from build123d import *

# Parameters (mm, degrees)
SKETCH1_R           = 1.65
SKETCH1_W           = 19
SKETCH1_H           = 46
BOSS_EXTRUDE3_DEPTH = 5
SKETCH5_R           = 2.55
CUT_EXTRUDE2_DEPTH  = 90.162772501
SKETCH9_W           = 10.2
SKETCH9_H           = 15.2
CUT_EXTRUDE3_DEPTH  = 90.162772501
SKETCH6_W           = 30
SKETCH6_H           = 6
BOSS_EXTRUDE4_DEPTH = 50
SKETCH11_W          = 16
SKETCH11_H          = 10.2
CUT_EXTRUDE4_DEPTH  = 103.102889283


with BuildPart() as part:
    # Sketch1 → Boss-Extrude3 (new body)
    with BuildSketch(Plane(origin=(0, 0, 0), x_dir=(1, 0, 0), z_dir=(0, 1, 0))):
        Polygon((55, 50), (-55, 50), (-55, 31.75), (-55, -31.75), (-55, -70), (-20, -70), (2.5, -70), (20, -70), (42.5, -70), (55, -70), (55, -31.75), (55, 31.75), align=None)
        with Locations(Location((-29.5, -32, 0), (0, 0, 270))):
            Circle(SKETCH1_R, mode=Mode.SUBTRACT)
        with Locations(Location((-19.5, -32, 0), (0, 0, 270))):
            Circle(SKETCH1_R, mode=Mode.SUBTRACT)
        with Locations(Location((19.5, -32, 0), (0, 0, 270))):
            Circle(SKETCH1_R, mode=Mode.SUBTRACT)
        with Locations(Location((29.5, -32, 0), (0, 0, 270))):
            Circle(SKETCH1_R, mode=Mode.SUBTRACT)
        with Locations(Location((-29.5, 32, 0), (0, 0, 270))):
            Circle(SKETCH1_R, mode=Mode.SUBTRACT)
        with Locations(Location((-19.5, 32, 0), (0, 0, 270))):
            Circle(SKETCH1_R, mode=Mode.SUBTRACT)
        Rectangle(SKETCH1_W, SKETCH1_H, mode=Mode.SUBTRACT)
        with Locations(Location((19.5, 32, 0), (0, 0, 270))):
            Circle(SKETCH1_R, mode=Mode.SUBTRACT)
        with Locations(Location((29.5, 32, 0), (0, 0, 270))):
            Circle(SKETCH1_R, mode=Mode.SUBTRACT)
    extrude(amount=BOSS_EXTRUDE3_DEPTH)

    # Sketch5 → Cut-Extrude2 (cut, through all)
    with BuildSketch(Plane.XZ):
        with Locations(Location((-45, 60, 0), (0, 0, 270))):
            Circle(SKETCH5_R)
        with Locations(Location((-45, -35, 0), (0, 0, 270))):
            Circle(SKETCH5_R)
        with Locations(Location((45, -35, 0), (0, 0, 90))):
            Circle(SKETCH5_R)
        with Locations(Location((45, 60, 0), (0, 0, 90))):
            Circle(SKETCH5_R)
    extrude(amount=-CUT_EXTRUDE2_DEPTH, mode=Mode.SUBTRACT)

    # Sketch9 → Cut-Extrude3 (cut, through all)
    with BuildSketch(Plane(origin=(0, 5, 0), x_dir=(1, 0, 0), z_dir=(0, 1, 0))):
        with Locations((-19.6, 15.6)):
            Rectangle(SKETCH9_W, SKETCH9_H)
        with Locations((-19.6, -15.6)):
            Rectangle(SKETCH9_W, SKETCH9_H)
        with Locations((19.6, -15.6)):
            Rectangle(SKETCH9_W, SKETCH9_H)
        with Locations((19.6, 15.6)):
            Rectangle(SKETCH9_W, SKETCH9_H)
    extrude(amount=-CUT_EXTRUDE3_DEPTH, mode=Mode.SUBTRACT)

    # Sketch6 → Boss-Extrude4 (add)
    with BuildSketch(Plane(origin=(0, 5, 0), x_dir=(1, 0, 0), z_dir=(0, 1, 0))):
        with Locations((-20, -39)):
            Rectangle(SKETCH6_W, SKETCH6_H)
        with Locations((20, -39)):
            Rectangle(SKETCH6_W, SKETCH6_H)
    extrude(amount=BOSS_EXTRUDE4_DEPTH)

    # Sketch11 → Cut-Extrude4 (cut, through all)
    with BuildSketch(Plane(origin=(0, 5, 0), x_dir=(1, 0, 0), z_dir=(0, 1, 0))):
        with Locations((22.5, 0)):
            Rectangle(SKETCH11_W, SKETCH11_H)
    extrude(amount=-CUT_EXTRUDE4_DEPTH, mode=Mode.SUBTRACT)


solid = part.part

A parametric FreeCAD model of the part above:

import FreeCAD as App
import Part
import Sketcher


def add_polygon(sketch, points):
    """Adds a closed chain of lines whose ends are joined by coincident constraints."""
    first, n = sketch.GeometryCount, len(points)
    for a, b in zip(points, points[1:] + points[:1]):
        sketch.addGeometry(Part.LineSegment(App.Vector(*a, 0), App.Vector(*b, 0)), False)
    for i in range(n):
        sketch.addConstraint(Sketcher.Constraint("Coincident", first + i, 2, first + (i + 1) % n, 1))

doc = App.newDocument("Part")
body = doc.addObject("PartDesign::Body", "Body")

# Sketch on XZ plane
sketch1 = body.newObject("Sketcher::SketchObject", "Sketch")
sketch1.AttachmentSupport = (doc.getObject("XZ_Plane"), [""])
sketch1.MapMode = "FlatFace"
add_polygon(sketch1, [(55, -50), (-55, -50), (-55, 70), (55, 70)])  # lines 0-3
sketch1.addGeometry(Part.Circle(App.Vector(-29.5, 32, 0), App.Vector(0, 0, 1), 1.65), False)  # 4
sketch1.addGeometry(Part.Circle(App.Vector(-19.5, 32, 0), App.Vector(0, 0, 1), 1.65), False)  # 5
sketch1.addGeometry(Part.Circle(App.Vector(19.5, 32, 0), App.Vector(0, 0, 1), 1.65), False)  # 6
sketch1.addGeometry(Part.Circle(App.Vector(29.5, 32, 0), App.Vector(0, 0, 1), 1.65), False)  # 7
sketch1.addGeometry(Part.Circle(App.Vector(-29.5, -32, 0), App.Vector(0, 0, 1), 1.65), False)  # 8
sketch1.addGeometry(Part.Circle(App.Vector(-19.5, -32, 0), App.Vector(0, 0, 1), 1.65), False)  # 9
add_polygon(sketch1, [(9.5, 23), (-9.5, 23), (-9.5, -23), (9.5, -23)])  # lines 10-13
sketch1.addGeometry(Part.Circle(App.Vector(19.5, -32, 0), App.Vector(0, 0, 1), 1.65), False)  # 14
sketch1.addGeometry(Part.Circle(App.Vector(29.5, -32, 0), App.Vector(0, 0, 1), 1.65), False)  # 15
sketch1.addConstraint([
    Sketcher.Constraint("Horizontal", 0),
    Sketcher.Constraint("Vertical", 1),
    Sketcher.Constraint("Horizontal", 2),
    Sketcher.Constraint("Vertical", 3),
    Sketcher.Constraint("Horizontal", 10),
    Sketcher.Constraint("Vertical", 11),
    Sketcher.Constraint("Horizontal", 12),
    Sketcher.Constraint("Vertical", 13),
    Sketcher.Constraint("Equal", 4, 5),
    Sketcher.Constraint("Equal", 5, 6),
    Sketcher.Constraint("Equal", 6, 7),
    Sketcher.Constraint("Equal", 7, 8),
    Sketcher.Constraint("Equal", 8, 9),
    Sketcher.Constraint("Equal", 9, 14),
    Sketcher.Constraint("Equal", 14, 15),
    Sketcher.Constraint("Symmetric", 7, 3, 8, 3, -1, 1),
    Sketcher.Constraint("Symmetric", 6, 3, 9, 3, -1, 1),
    Sketcher.Constraint("Symmetric", 5, 3, 14, 3, -1, 1),
    Sketcher.Constraint("Symmetric", 4, 3, 15, 3, -1, 1),
    Sketcher.Constraint("Symmetric", 10, 2, 12, 2, -1, 1),
    Sketcher.Constraint("Symmetric", 5, 3, 6, 3, -2),
    Sketcher.Constraint("Symmetric", 4, 3, 7, 3, -2),
    Sketcher.Constraint("Horizontal", 4, 3, 5, 3),
    Sketcher.Constraint("Diameter", 4, 3.3),
    Sketcher.Constraint("DistanceX", 0, 2, 0, 1, 110.0),
    Sketcher.Constraint("DistanceX", 10, 2, 10, 1, 19.0),
    Sketcher.Constraint("DistanceY", 1, 1, 1, 2, 120.0),
    Sketcher.Constraint("DistanceY", 11, 2, 11, 1, 46.0),
    Sketcher.Constraint("DistanceY", -1, 1, 4, 3, 32.0),
    Sketcher.Constraint("DistanceX", 0, 2, -1, 1, 55.0),
    Sketcher.Constraint("DistanceY", 0, 2, -1, 1, 50.0),
    Sketcher.Constraint("DistanceX", 4, 3, 5, 3, 10.0),
    Sketcher.Constraint("DistanceX", 5, 3, 6, 3, 39.0),
])
pad1 = body.newObject("PartDesign::Pad", "Pad")
pad1.Profile = sketch1
pad1.Length = 5
pad1.Reversed = True

# Sketch on XZ plane
sketch2 = body.newObject("Sketcher::SketchObject", "Sketch001")
sketch2.AttachmentSupport = (doc.getObject("XZ_Plane"), [""])
sketch2.MapMode = "FlatFace"
sketch2.addGeometry([
    Part.Circle(App.Vector(-45, 60, 0), App.Vector(0, 0, 1), 2.55),
    Part.Circle(App.Vector(-45, -35, 0), App.Vector(0, 0, 1), 2.55),
    Part.Circle(App.Vector(45, -35, 0), App.Vector(0, 0, 1), 2.55),
    Part.Circle(App.Vector(45, 60, 0), App.Vector(0, 0, 1), 2.55),
], False)
sketch2.addConstraint([
    Sketcher.Constraint("Equal", 0, 1),
    Sketcher.Constraint("Equal", 1, 2),
    Sketcher.Constraint("Equal", 2, 3),
    Sketcher.Constraint("Symmetric", 1, 3, 2, 3, -2),
    Sketcher.Constraint("Symmetric", 0, 3, 3, 3, -2),
    Sketcher.Constraint("Vertical", 0, 3, 1, 3),
    Sketcher.Constraint("Diameter", 0, 5.1),
    Sketcher.Constraint("DistanceX", 0, 3, -1, 1, 45.0),
    Sketcher.Constraint("DistanceY", -1, 1, 0, 3, 60.0),
    Sketcher.Constraint("DistanceY", 1, 3, -1, 1, 35.0),
])
pocket1 = body.newObject("PartDesign::Pocket", "Pocket")
pocket1.Profile = sketch2
pocket1.Type = "ThroughAll"

# Sketch on XZ plane
sketch3 = body.newObject("Sketcher::SketchObject", "Sketch002")
sketch3.AttachmentSupport = (doc.getObject("XZ_Plane"), [""])
sketch3.MapMode = "FlatFace"
sketch3.AttachmentOffset = App.Placement(App.Vector(0, 0, -5), App.Rotation())
add_polygon(sketch3, [(-24.7, -23.2), (-24.7, -8), (-14.5, -8), (-14.5, -23.2)])  # lines 0-3
add_polygon(sketch3, [(-24.7, 8), (-24.7, 23.2), (-14.5, 23.2), (-14.5, 8)])  # lines 4-7
add_polygon(sketch3, [(14.5, 8), (14.5, 23.2), (24.7, 23.2), (24.7, 8)])  # lines 8-11
add_polygon(sketch3, [(14.5, -23.2), (14.5, -8), (24.7, -8), (24.7, -23.2)])  # lines 12-15
sketch3.addConstraint([
    Sketcher.Constraint("Vertical", 0),
    Sketcher.Constraint("Horizontal", 1),
    Sketcher.Constraint("Vertical", 2),
    Sketcher.Constraint("Horizontal", 3),
    Sketcher.Constraint("Vertical", 4),
    Sketcher.Constraint("Horizontal", 5),
    Sketcher.Constraint("Vertical", 6),
    Sketcher.Constraint("Horizontal", 7),
    Sketcher.Constraint("Vertical", 8),
    Sketcher.Constraint("Horizontal", 9),
    Sketcher.Constraint("Vertical", 10),
    Sketcher.Constraint("Horizontal", 11),
    Sketcher.Constraint("Vertical", 12),
    Sketcher.Constraint("Horizontal", 13),
    Sketcher.Constraint("Vertical", 14),
    Sketcher.Constraint("Horizontal", 15),
    Sketcher.Constraint("Symmetric", 2, 2, 8, 2, -1, 1),
    Sketcher.Constraint("Symmetric", 0, 2, 10, 2, -1, 1),
    Sketcher.Constraint("Symmetric", 6, 2, 12, 2, -1, 1),
    Sketcher.Constraint("Symmetric", 4, 2, 14, 2, -1, 1),
    Sketcher.Constraint("Symmetric", 5, 2, 8, 2, -2),
    Sketcher.Constraint("Symmetric", 7, 2, 10, 2, -2),
    Sketcher.Constraint("DistanceX", 1, 1, 1, 2, 10.2),
    Sketcher.Constraint("DistanceY", 0, 1, 0, 2, 15.2),
    Sketcher.Constraint("DistanceY", 0, 2, -1, 1, 8.0),
    Sketcher.Constraint("DistanceX", 5, 2, 8, 2, 29.0),
])
pocket2 = body.newObject("PartDesign::Pocket", "Pocket001")
pocket2.Profile = sketch3
pocket2.Type = "ThroughAll"
pocket2.Reversed = True

# Sketch on XZ plane
sketch4 = body.newObject("Sketcher::SketchObject", "Sketch003")
sketch4.AttachmentSupport = (doc.getObject("XZ_Plane"), [""])
sketch4.MapMode = "FlatFace"
sketch4.AttachmentOffset = App.Placement(App.Vector(0, 0, -5), App.Rotation())
add_polygon(sketch4, [(-35, 36), (-35, 42), (-5, 42), (-5, 36)])  # lines 0-3
add_polygon(sketch4, [(5, 36), (5, 42), (35, 42), (35, 36)])  # lines 4-7
sketch4.addConstraint([
    Sketcher.Constraint("Vertical", 0),
    Sketcher.Constraint("Horizontal", 1),
    Sketcher.Constraint("Vertical", 2),
    Sketcher.Constraint("Horizontal", 3),
    Sketcher.Constraint("Vertical", 4),
    Sketcher.Constraint("Horizontal", 5),
    Sketcher.Constraint("Vertical", 6),
    Sketcher.Constraint("Horizontal", 7),
    Sketcher.Constraint("Symmetric", 1, 2, 4, 2, -2),
    Sketcher.Constraint("Symmetric", 3, 2, 6, 2, -2),
    Sketcher.Constraint("DistanceX", 1, 1, 1, 2, 30.0),
    Sketcher.Constraint("DistanceY", 0, 1, 0, 2, 6.0),
    Sketcher.Constraint("DistanceX", 0, 2, -1, 1, 35.0),
    Sketcher.Constraint("DistanceY", -1, 1, 0, 2, 42.0),
])
pad2 = body.newObject("PartDesign::Pad", "Pad001")
pad2.Profile = sketch4
pad2.Length = 50
pad2.Reversed = True

# Sketch on XZ plane
sketch5 = body.newObject("Sketcher::SketchObject", "Sketch004")
sketch5.AttachmentSupport = (doc.getObject("XZ_Plane"), [""])
sketch5.MapMode = "FlatFace"
sketch5.AttachmentOffset = App.Placement(App.Vector(0, 0, -5), App.Rotation())
add_polygon(sketch5, [(14.5, -5.1), (14.5, 5.1), (30.5, 5.1), (30.5, -5.1)])  # lines 0-3
sketch5.addConstraint([
    Sketcher.Constraint("Vertical", 0),
    Sketcher.Constraint("Horizontal", 1),
    Sketcher.Constraint("Vertical", 2),
    Sketcher.Constraint("Horizontal", 3),
    Sketcher.Constraint("DistanceX", 1, 1, 1, 2, 16.0),
    Sketcher.Constraint("DistanceY", 0, 1, 0, 2, 10.2),
    Sketcher.Constraint("DistanceX", -1, 1, 0, 2, 14.5),
    Sketcher.Constraint("DistanceY", -1, 1, 0, 2, 5.1),
])
pocket3 = body.newObject("PartDesign::Pocket", "Pocket002")
pocket3.Profile = sketch5
pocket3.Type = "ThroughAll"
pocket3.Reversed = True

doc.recompute()
